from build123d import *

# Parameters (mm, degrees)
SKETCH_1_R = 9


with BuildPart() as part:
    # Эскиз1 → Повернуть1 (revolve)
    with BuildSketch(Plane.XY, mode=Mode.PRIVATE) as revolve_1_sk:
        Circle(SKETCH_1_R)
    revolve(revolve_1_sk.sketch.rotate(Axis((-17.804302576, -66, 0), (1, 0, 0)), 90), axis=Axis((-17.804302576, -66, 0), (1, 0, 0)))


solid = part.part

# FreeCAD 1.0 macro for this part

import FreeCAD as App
import Part
import Sketcher

V = App.Vector

doc = App.newDocument("Part")
body = doc.addObject("PartDesign::Body", "Body")

sketch1 = doc.addObject("Sketcher::SketchObject", "Sketch")
body.addObject(sketch1)
sketch1.AttachmentSupport = (doc.XY_Plane, [""])
sketch1.MapMode = "FlatFace"
sketch1.addGeometry(Part.Circle(V(0, 0, 0), V(0, 0, 1), 9), False)
sketch1.addGeometry(Part.LineSegment(V(0, -66, 0), V(10, -66, 0)), True)
sketch1.addConstraint(Sketcher.Constraint("Horizontal", 1))
sketch1.addConstraint(Sketcher.Constraint("Coincident", 0, 3, -1, 1))
sketch1.addConstraint(Sketcher.Constraint("PointOnObject", 1, 1, -2))
sketch1.addConstraint(Sketcher.Constraint("Diameter", 0, 18.0))
sketch1.addConstraint(Sketcher.Constraint("DistanceX", 1, 1, 1, 2, 10.0))
sketch1.addConstraint(Sketcher.Constraint("DistanceY", 1, 1, -1, 1, 66.0))
revolution = doc.addObject("PartDesign::Revolution", "Revolution")
body.addObject(revolution)
revolution.Profile = sketch1
revolution.ReferenceAxis = (sketch1, ["Axis0"])
revolution.Angle = 360

doc.recompute()
